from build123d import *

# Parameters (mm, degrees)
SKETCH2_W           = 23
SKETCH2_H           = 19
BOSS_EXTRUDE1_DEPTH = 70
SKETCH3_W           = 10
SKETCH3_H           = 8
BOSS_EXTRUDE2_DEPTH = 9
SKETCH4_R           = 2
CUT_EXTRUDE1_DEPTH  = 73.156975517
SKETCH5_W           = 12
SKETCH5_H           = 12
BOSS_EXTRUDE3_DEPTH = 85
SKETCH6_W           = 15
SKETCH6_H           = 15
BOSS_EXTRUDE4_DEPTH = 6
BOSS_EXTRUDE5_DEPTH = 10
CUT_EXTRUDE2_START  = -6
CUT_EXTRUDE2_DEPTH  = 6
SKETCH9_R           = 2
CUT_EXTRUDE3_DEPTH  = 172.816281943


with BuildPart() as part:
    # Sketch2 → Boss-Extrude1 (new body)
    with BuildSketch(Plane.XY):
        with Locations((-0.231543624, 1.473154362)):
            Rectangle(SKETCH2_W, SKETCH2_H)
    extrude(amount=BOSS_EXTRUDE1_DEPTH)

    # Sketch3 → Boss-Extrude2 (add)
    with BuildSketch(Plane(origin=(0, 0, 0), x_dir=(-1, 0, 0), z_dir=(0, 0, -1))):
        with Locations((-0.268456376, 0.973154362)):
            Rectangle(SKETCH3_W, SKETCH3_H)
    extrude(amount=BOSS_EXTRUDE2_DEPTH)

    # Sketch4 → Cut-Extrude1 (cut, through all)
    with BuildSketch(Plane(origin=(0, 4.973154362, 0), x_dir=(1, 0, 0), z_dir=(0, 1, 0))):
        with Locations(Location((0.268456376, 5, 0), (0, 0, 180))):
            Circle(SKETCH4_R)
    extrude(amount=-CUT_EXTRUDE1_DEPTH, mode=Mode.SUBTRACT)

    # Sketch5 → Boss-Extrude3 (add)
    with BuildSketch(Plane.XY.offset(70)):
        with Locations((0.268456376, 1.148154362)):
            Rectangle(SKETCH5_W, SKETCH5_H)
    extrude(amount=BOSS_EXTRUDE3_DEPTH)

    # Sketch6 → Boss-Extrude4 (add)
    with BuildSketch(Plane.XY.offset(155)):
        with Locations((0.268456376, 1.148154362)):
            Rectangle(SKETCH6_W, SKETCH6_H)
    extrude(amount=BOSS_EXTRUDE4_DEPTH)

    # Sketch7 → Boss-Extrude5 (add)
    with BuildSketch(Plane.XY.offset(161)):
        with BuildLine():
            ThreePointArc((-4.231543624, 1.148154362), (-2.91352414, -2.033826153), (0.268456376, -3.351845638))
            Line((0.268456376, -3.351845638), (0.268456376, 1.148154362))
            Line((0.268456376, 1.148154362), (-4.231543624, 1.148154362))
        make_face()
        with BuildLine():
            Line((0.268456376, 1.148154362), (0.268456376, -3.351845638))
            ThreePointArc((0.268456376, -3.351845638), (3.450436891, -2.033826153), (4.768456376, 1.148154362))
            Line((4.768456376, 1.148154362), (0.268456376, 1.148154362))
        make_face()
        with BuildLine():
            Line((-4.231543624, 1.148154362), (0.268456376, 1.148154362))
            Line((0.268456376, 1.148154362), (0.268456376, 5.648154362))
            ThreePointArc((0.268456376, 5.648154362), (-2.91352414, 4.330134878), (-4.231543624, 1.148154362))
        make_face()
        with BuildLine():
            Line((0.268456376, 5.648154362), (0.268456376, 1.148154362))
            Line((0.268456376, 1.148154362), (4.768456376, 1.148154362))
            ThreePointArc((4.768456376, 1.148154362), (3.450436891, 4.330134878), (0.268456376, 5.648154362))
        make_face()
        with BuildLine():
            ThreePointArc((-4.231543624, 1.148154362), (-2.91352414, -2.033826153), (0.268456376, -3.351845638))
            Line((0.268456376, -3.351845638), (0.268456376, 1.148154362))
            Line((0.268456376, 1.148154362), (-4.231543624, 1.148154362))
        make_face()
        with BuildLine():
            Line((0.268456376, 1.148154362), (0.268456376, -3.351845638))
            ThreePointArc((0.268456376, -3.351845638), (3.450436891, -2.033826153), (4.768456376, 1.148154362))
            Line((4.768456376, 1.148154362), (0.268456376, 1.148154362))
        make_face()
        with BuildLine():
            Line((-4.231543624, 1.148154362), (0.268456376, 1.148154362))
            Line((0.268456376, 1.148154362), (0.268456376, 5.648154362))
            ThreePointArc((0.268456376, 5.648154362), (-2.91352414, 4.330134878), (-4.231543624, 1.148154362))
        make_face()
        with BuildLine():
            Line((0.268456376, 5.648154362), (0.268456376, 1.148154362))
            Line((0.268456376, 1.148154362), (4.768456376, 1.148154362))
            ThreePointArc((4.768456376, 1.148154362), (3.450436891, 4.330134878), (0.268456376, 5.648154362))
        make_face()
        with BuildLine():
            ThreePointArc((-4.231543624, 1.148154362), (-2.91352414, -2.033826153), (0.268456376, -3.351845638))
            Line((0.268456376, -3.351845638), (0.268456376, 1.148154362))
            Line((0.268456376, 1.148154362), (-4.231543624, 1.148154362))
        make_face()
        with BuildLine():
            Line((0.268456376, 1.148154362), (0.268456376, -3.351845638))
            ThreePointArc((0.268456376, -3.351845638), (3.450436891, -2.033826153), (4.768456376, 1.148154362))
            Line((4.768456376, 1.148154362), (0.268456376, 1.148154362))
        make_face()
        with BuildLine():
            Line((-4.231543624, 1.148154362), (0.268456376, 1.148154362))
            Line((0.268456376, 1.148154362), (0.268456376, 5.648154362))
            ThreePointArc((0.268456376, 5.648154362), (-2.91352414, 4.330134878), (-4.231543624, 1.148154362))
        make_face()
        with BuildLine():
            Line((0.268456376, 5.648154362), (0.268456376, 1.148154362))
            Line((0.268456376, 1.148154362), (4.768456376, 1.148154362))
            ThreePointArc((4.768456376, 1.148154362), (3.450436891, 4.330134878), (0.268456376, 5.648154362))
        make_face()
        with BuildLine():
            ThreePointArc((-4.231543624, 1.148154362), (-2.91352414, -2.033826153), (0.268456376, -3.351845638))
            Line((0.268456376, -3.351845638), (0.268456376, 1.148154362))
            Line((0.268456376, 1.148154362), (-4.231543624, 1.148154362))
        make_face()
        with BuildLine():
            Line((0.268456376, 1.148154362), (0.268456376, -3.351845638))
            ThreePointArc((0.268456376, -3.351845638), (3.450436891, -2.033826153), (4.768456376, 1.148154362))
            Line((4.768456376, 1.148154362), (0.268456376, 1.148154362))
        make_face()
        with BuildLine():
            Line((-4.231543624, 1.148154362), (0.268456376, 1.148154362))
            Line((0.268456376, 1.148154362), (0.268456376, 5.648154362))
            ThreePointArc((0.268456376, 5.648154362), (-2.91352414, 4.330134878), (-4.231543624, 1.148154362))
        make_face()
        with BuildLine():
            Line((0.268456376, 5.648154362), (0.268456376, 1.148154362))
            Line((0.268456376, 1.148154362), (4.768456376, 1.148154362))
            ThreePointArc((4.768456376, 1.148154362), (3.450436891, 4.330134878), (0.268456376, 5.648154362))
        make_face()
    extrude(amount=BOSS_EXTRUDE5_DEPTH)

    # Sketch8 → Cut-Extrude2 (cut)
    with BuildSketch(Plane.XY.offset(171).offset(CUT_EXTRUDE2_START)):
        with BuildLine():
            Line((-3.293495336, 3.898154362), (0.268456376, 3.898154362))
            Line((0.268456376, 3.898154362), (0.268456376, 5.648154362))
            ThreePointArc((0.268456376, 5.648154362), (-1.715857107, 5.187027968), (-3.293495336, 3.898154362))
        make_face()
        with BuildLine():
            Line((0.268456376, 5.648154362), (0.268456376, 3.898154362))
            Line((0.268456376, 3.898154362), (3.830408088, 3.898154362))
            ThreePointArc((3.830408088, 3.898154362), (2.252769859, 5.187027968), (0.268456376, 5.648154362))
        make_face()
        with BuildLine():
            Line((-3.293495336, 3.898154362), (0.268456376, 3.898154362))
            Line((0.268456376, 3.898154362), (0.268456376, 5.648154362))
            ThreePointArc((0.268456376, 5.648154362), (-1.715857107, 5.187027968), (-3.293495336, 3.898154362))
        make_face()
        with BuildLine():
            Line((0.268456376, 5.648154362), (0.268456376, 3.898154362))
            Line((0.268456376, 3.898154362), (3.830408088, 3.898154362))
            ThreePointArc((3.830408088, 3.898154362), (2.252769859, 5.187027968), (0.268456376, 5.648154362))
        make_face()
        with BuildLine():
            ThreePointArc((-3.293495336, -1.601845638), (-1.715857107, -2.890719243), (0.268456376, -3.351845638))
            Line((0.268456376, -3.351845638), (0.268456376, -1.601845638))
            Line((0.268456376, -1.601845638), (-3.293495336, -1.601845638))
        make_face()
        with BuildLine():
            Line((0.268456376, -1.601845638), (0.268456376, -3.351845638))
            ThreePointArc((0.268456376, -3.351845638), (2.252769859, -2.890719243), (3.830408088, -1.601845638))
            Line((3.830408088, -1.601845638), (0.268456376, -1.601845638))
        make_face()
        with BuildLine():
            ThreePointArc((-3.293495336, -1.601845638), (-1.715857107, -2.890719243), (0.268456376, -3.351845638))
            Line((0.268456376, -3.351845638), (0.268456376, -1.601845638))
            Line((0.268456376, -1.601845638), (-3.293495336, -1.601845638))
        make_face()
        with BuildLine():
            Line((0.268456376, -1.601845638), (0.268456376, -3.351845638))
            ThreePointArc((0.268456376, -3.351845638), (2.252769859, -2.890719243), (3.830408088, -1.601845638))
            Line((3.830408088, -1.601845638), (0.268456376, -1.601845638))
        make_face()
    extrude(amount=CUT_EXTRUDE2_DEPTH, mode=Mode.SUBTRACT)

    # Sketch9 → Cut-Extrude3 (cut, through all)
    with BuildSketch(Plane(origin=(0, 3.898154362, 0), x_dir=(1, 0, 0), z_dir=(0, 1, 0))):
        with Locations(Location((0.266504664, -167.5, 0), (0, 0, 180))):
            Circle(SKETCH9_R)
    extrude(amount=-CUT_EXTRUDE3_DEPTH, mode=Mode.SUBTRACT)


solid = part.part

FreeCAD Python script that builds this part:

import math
import FreeCAD as App
import Part
import Sketcher
from FreeCAD import Vector
Q = App.Units.Quantity

doc = App.newDocument("Part")
body = doc.addObject("PartDesign::Body", "Body")

# Sketch on XY plane
sketch1 = body.newObject("Sketcher::SketchObject", "Sketch")
sketch1.AttachmentSupport = (doc.getObject("XY_Plane"), [""])
sketch1.MapMode = "FlatFace"
sketch1.addGeometry(Part.LineSegment(Vector(-11.731544, 10.973154, 0), Vector(-11.731544, -8.026846, 0)), False)
sketch1.addGeometry(Part.LineSegment(Vector(-11.731544, -8.026846, 0), Vector(11.268456, -8.026846, 0)), False)
sketch1.addGeometry(Part.LineSegment(Vector(11.268456, -8.026846, 0), Vector(11.268456, 10.973154, 0)), False)
sketch1.addGeometry(Part.LineSegment(Vector(11.268456, 10.973154, 0), Vector(-11.731544, 10.973154, 0)), False)
sketch1.addConstraint(Sketcher.Constraint("Coincident", 0, 2, 1, 1))
sketch1.addConstraint(Sketcher.Constraint("Coincident", 1, 2, 2, 1))
sketch1.addConstraint(Sketcher.Constraint("Coincident", 2, 2, 3, 1))
sketch1.addConstraint(Sketcher.Constraint("Coincident", 3, 2, 0, 1))
sketch1.addConstraint(Sketcher.Constraint("Vertical", 0))
sketch1.addConstraint(Sketcher.Constraint("Horizontal", 1))
sketch1.addConstraint(Sketcher.Constraint("Vertical", 2))
sketch1.addConstraint(Sketcher.Constraint("Horizontal", 3))
sketch1.addConstraint(Sketcher.Constraint("DistanceX", 1, 1, 1, 2, Q("23 mm")))
sketch1.addConstraint(Sketcher.Constraint("DistanceY", 0, 2, 0, 1, Q("19 mm")))
sketch1.addConstraint(Sketcher.Constraint("DistanceX", 0, 2, -1, 1, Q("11.731544 mm")))
sketch1.addConstraint(Sketcher.Constraint("DistanceY", 0, 2, -1, 1, Q("8.026846 mm")))
pad1 = body.newObject("PartDesign::Pad", "Pad")
pad1.Profile = sketch1
pad1.Length = 70

# Sketch on XY plane
sketch2 = body.newObject("Sketcher::SketchObject", "Sketch001")
sketch2.AttachmentSupport = (doc.getObject("XY_Plane"), [""])
sketch2.MapMode = "FlatFace"
sketch2.addGeometry(Part.LineSegment(Vector(5.268456, 4.973154, 0), Vector(5.268456, -3.026846, 0)), False)
sketch2.addGeometry(Part.LineSegment(Vector(5.268456, -3.026846, 0), Vector(-4.731544, -3.026846, 0)), False)
sketch2.addGeometry(Part.LineSegment(Vector(-4.731544, -3.026846, 0), Vector(-4.731544, 4.973154, 0)), False)
sketch2.addGeometry(Part.LineSegment(Vector(-4.731544, 4.973154, 0), Vector(5.268456, 4.973154, 0)), False)
sketch2.addConstraint(Sketcher.Constraint("Coincident", 0, 2, 1, 1))
sketch2.addConstraint(Sketcher.Constraint("Coincident", 1, 2, 2, 1))
sketch2.addConstraint(Sketcher.Constraint("Coincident", 2, 2, 3, 1))
sketch2.addConstraint(Sketcher.Constraint("Coincident", 3, 2, 0, 1))
sketch2.addConstraint(Sketcher.Constraint("Vertical", 0))
sketch2.addConstraint(Sketcher.Constraint("Horizontal", 1))
sketch2.addConstraint(Sketcher.Constraint("Vertical", 2))
sketch2.addConstraint(Sketcher.Constraint("Horizontal", 3))
sketch2.addConstraint(Sketcher.Constraint("DistanceX", 1, 2, 1, 1, Q("10 mm")))
sketch2.addConstraint(Sketcher.Constraint("DistanceY", 0, 2, 0, 1, Q("8 mm")))
sketch2.addConstraint(Sketcher.Constraint("DistanceX", -1, 1, 0, 2, Q("5.268456 mm")))
sketch2.addConstraint(Sketcher.Constraint("DistanceY", 0, 2, -1, 1, Q("3.026846 mm")))
pad2 = body.newObject("PartDesign::Pad", "Pad001")
pad2.Profile = sketch2
pad2.Length = 9
pad2.Reversed = True

# Sketch on XZ plane
sketch3 = body.newObject("Sketcher::SketchObject", "Sketch002")
sketch3.AttachmentSupport = (doc.getObject("XZ_Plane"), [""])
sketch3.MapMode = "FlatFace"
sketch3.AttachmentOffset = App.Placement(Vector(0, 0, -4.973154), App.Rotation())
sketch3.addGeometry(Part.Circle(Vector(0.268456, -5, 0), Vector(0, 0, 1), 2), False)
sketch3.addConstraint(Sketcher.Constraint("Diameter", 0, Q("4 mm")))
sketch3.addConstraint(Sketcher.Constraint("DistanceY", 0, 3, -1, 1, Q("5 mm")))
sketch3.addConstraint(Sketcher.Constraint("DistanceX", -1, 1, 0, 3, Q("0.268456 mm")))
pocket1 = body.newObject("PartDesign::Pocket", "Pocket")
pocket1.Profile = sketch3
pocket1.Type = "ThroughAll"
pocket1.Reversed = True

# Sketch on XY plane
sketch4 = body.newObject("Sketcher::SketchObject", "Sketch003")
sketch4.AttachmentSupport = (doc.getObject("XY_Plane"), [""])
sketch4.MapMode = "FlatFace"
sketch4.AttachmentOffset = App.Placement(Vector(0, 0, 70), App.Rotation())
sketch4.addGeometry(Part.LineSegment(Vector(-5.731544, 7.148154, 0), Vector(-5.731544, -4.851846, 0)), False)
sketch4.addGeometry(Part.LineSegment(Vector(-5.731544, -4.851846, 0), Vector(6.268456, -4.851846, 0)), False)
sketch4.addGeometry(Part.LineSegment(Vector(6.268456, -4.851846, 0), Vector(6.268456, 7.148154, 0)), False)
sketch4.addGeometry(Part.LineSegment(Vector(6.268456, 7.148154, 0), Vector(-5.731544, 7.148154, 0)), False)
sketch4.addConstraint(Sketcher.Constraint("Coincident", 0, 2, 1, 1))
sketch4.addConstraint(Sketcher.Constraint("Coincident", 1, 2, 2, 1))
sketch4.addConstraint(Sketcher.Constraint("Coincident", 2, 2, 3, 1))
sketch4.addConstraint(Sketcher.Constraint("Coincident", 3, 2, 0, 1))
sketch4.addConstraint(Sketcher.Constraint("Vertical", 0))
sketch4.addConstraint(Sketcher.Constraint("Horizontal", 1))
sketch4.addConstraint(Sketcher.Constraint("Vertical", 2))
sketch4.addConstraint(Sketcher.Constraint("Horizontal", 3))
sketch4.addConstraint(Sketcher.Constraint("Equal", 3, 0))
sketch4.addConstraint(Sketcher.Constraint("DistanceX", 1, 1, 1, 2, Q("12 mm")))
sketch4.addConstraint(Sketcher.Constraint("DistanceX", 0, 2, -1, 1, Q("5.731544 mm")))
sketch4.addConstraint(Sketcher.Constraint("DistanceY", 0, 2, -1, 1, Q("4.851846 mm")))
pad3 = body.newObject("PartDesign::Pad", "Pad002")
pad3.Profile = sketch4
pad3.Length = 85

# Sketch on XY plane
sketch5 = body.newObject("Sketcher::SketchObject", "Sketch004")
sketch5.AttachmentSupport = (doc.getObject("XY_Plane"), [""])
sketch5.MapMode = "FlatFace"
sketch5.AttachmentOffset = App.Placement(Vector(0, 0, 155), App.Rotation())
sketch5.addGeometry(Part.LineSegment(Vector(-7.231544, 8.648154, 0), Vector(-7.231544, -6.351846, 0)), False)
sketch5.addGeometry(Part.LineSegment(Vector(-7.231544, -6.351846, 0), Vector(7.768456, -6.351846, 0)), False)
sketch5.addGeometry(Part.LineSegment(Vector(7.768456, -6.351846, 0), Vector(7.768456, 8.648154, 0)), False)
sketch5.addGeometry(Part.LineSegment(Vector(7.768456, 8.648154, 0), Vector(-7.231544, 8.648154, 0)), False)
sketch5.addConstraint(Sketcher.Constraint("Coincident", 0, 2, 1, 1))
sketch5.addConstraint(Sketcher.Constraint("Coincident", 1, 2, 2, 1))
sketch5.addConstraint(Sketcher.Constraint("Coincident", 2, 2, 3, 1))
sketch5.addConstraint(Sketcher.Constraint("Coincident", 3, 2, 0, 1))
sketch5.addConstraint(Sketcher.Constraint("Vertical", 0))
sketch5.addConstraint(Sketcher.Constraint("Horizontal", 1))
sketch5.addConstraint(Sketcher.Constraint("Vertical", 2))
sketch5.addConstraint(Sketcher.Constraint("Horizontal", 3))
sketch5.addConstraint(Sketcher.Constraint("Equal", 3, 0))
sketch5.addConstraint(Sketcher.Constraint("DistanceX", 1, 1, 1, 2, Q("15 mm")))
sketch5.addConstraint(Sketcher.Constraint("DistanceX", 0, 2, -1, 1, Q("7.231544 mm")))
sketch5.addConstraint(Sketcher.Constraint("DistanceY", 0, 2, -1, 1, Q("6.351846 mm")))
pad4 = body.newObject("PartDesign::Pad", "Pad003")
pad4.Profile = sketch5
pad4.Length = 6

# Sketch on XY plane
sketch6 = body.newObject("Sketcher::SketchObject", "Sketch005")
sketch6.AttachmentSupport = (doc.getObject("XY_Plane"), [""])
sketch6.MapMode = "FlatFace"
sketch6.AttachmentOffset = App.Placement(Vector(0, 0, 161), App.Rotation())
sketch6.addGeometry(Part.ArcOfCircle(Part.Circle(Vector(0.268456, 1.148154, 0), Vector(0, 0, 1), 4.5), math.radians(-90), math.radians(0)), False)
sketch6.addGeometry(Part.ArcOfCircle(Part.Circle(Vector(0.268456, 1.148154, 0), Vector(0, 0, 1), 4.5), math.radians(0), math.radians(90)), False)
sketch6.addGeometry(Part.ArcOfCircle(Part.Circle(Vector(0.268456, 1.148154, 0), Vector(0, 0, 1), 4.5), math.radians(90), math.radians(180)), False)
sketch6.addGeometry(Part.ArcOfCircle(Part.Circle(Vector(0.268456, 1.148154, 0), Vector(0, 0, 1), 4.5), math.radians(180), math.radians(270)), False)
sketch6.addConstraint(Sketcher.Constraint("Tangent", 0, 2, 1, 1))
sketch6.addConstraint(Sketcher.Constraint("Tangent", 1, 2, 2, 1))
sketch6.addConstraint(Sketcher.Constraint("Tangent", 2, 2, 3, 1))
sketch6.addConstraint(Sketcher.Constraint("Tangent", 3, 2, 0, 1))
sketch6.addConstraint(Sketcher.Constraint("Equal", 0, 1))
sketch6.addConstraint(Sketcher.Constraint("Horizontal", 3, 3, 0, 2))
sketch6.addConstraint(Sketcher.Constraint("Horizontal", 0, 2, 2, 2))
sketch6.addConstraint(Sketcher.Constraint("Vertical", 3, 3, 1, 2))
sketch6.addConstraint(Sketcher.Constraint("Vertical", 1, 2, 3, 2))
sketch6.addConstraint(Sketcher.Constraint("Radius", 0, Q("4.5 mm")))
sketch6.addConstraint(Sketcher.Constraint("DistanceX", -1, 1, 0, 3, Q("0.268456 mm")))
sketch6.addConstraint(Sketcher.Constraint("DistanceY", -1, 1, 0, 3, Q("1.148154 mm")))
pad5 = body.newObject("PartDesign::Pad", "Pad004")
pad5.Profile = sketch6
pad5.Length = 10

# Sketch on XY plane
sketch7 = body.newObject("Sketcher::SketchObject", "Sketch006")
sketch7.AttachmentSupport = (doc.getObject("XY_Plane"), [""])
sketch7.MapMode = "FlatFace"
sketch7.AttachmentOffset = App.Placement(Vector(0, 0, 165), App.Rotation())
sketch7.addGeometry(Part.LineSegment(Vector(-3.293495, 3.898154, 0), Vector(3.830408, 3.898154, 0)), False)
sketch7.addGeometry(Part.ArcOfCircle(Part.Circle(Vector(0.268456, 1.148154, 0), Vector(0, 0, 1), 4.5), math.radians(37.669887), math.radians(90)), False)
sketch7.addGeometry(Part.ArcOfCircle(Part.Circle(Vector(0.268456, 1.148154, 0), Vector(0, 0, 1), 4.5), math.radians(90), math.radians(142.330113)), False)
sketch7.addGeometry(Part.ArcOfCircle(Part.Circle(Vector(0.268456, 1.148154, 0), Vector(0, 0, 1), 4.5), math.radians(-142.330113), math.radians(-90)), False)
sketch7.addGeometry(Part.ArcOfCircle(Part.Circle(Vector(0.268456, 1.148154, 0), Vector(0, 0, 1), 4.5), math.radians(-90), math.radians(-37.669887)), False)
sketch7.addGeometry(Part.LineSegment(Vector(3.830408, -1.601846, 0), Vector(-3.293495, -1.601846, 0)), False)
sketch7.addConstraint(Sketcher.Constraint("Coincident", 0, 2, 1, 1))
sketch7.addConstraint(Sketcher.Constraint("Tangent", 1, 2, 2, 1))
sketch7.addConstraint(Sketcher.Constraint("Coincident", 2, 2, 0, 1))
sketch7.addConstraint(Sketcher.Constraint("Tangent", 3, 2, 4, 1))
sketch7.addConstraint(Sketcher.Constraint("Coincident", 4, 2, 5, 1))
sketch7.addConstraint(Sketcher.Constraint("Coincident", 5, 2, 3, 1))
sketch7.addConstraint(Sketcher.Constraint("Horizontal", 0))
sketch7.addConstraint(Sketcher.Constraint("Horizontal", 5))
sketch7.addConstraint(Sketcher.Constraint("Coincident", 3, 3, 1, 3))
sketch7.addConstraint(Sketcher.Constraint("Equal", 1, 2))
sketch7.addConstraint(Sketcher.Constraint("Equal", 2, 3))
sketch7.addConstraint(Sketcher.Constraint("Equal", 3, 4))
sketch7.addConstraint(Sketcher.Constraint("Vertical", 4, 3, 1, 2))
sketch7.addConstraint(Sketcher.Constraint("Vertical", 1, 2, 3, 2))
sketch7.addConstraint(Sketcher.Constraint("Vertical", 0, 2, 4, 2))
sketch7.addConstraint(Sketcher.Constraint("Radius", 1, Q("4.5 mm")))
sketch7.addConstraint(Sketcher.Constraint("DistanceY", 1, 3, 0, 2, Q("2.75 mm")))
sketch7.addConstraint(Sketcher.Constraint("DistanceX", -1, 1, 0, 2, Q("3.830408 mm")))
sketch7.addConstraint(Sketcher.Constraint("DistanceY", -1, 1, 1, 3, Q("1.148154 mm")))
pocket2 = body.newObject("PartDesign::Pocket", "Pocket001")
pocket2.Profile = sketch7
pocket2.Length = 6
pocket2.Reversed = True

# Sketch on XZ plane
sketch8 = body.newObject("Sketcher::SketchObject", "Sketch007")
sketch8.AttachmentSupport = (doc.getObject("XZ_Plane"), [""])
sketch8.MapMode = "FlatFace"
sketch8.AttachmentOffset = App.Placement(Vector(0, 0, -3.898154), App.Rotation())
sketch8.addGeometry(Part.Circle(Vector(0.266505, 167.5, 0), Vector(0, 0, 1), 2), False)
sketch8.addConstraint(Sketcher.Constraint("Diameter", 0, Q("4 mm")))
sketch8.addConstraint(Sketcher.Constraint("DistanceY", -1, 1, 0, 3, Q("167.5 mm")))
sketch8.addConstraint(Sketcher.Constraint("DistanceX", -1, 1, 0, 3, Q("0.266505 mm")))
pocket3 = body.newObject("PartDesign::Pocket", "Pocket002")
pocket3.Profile = sketch8
pocket3.Type = "ThroughAll"
pocket3.Reversed = True

doc.recompute()
